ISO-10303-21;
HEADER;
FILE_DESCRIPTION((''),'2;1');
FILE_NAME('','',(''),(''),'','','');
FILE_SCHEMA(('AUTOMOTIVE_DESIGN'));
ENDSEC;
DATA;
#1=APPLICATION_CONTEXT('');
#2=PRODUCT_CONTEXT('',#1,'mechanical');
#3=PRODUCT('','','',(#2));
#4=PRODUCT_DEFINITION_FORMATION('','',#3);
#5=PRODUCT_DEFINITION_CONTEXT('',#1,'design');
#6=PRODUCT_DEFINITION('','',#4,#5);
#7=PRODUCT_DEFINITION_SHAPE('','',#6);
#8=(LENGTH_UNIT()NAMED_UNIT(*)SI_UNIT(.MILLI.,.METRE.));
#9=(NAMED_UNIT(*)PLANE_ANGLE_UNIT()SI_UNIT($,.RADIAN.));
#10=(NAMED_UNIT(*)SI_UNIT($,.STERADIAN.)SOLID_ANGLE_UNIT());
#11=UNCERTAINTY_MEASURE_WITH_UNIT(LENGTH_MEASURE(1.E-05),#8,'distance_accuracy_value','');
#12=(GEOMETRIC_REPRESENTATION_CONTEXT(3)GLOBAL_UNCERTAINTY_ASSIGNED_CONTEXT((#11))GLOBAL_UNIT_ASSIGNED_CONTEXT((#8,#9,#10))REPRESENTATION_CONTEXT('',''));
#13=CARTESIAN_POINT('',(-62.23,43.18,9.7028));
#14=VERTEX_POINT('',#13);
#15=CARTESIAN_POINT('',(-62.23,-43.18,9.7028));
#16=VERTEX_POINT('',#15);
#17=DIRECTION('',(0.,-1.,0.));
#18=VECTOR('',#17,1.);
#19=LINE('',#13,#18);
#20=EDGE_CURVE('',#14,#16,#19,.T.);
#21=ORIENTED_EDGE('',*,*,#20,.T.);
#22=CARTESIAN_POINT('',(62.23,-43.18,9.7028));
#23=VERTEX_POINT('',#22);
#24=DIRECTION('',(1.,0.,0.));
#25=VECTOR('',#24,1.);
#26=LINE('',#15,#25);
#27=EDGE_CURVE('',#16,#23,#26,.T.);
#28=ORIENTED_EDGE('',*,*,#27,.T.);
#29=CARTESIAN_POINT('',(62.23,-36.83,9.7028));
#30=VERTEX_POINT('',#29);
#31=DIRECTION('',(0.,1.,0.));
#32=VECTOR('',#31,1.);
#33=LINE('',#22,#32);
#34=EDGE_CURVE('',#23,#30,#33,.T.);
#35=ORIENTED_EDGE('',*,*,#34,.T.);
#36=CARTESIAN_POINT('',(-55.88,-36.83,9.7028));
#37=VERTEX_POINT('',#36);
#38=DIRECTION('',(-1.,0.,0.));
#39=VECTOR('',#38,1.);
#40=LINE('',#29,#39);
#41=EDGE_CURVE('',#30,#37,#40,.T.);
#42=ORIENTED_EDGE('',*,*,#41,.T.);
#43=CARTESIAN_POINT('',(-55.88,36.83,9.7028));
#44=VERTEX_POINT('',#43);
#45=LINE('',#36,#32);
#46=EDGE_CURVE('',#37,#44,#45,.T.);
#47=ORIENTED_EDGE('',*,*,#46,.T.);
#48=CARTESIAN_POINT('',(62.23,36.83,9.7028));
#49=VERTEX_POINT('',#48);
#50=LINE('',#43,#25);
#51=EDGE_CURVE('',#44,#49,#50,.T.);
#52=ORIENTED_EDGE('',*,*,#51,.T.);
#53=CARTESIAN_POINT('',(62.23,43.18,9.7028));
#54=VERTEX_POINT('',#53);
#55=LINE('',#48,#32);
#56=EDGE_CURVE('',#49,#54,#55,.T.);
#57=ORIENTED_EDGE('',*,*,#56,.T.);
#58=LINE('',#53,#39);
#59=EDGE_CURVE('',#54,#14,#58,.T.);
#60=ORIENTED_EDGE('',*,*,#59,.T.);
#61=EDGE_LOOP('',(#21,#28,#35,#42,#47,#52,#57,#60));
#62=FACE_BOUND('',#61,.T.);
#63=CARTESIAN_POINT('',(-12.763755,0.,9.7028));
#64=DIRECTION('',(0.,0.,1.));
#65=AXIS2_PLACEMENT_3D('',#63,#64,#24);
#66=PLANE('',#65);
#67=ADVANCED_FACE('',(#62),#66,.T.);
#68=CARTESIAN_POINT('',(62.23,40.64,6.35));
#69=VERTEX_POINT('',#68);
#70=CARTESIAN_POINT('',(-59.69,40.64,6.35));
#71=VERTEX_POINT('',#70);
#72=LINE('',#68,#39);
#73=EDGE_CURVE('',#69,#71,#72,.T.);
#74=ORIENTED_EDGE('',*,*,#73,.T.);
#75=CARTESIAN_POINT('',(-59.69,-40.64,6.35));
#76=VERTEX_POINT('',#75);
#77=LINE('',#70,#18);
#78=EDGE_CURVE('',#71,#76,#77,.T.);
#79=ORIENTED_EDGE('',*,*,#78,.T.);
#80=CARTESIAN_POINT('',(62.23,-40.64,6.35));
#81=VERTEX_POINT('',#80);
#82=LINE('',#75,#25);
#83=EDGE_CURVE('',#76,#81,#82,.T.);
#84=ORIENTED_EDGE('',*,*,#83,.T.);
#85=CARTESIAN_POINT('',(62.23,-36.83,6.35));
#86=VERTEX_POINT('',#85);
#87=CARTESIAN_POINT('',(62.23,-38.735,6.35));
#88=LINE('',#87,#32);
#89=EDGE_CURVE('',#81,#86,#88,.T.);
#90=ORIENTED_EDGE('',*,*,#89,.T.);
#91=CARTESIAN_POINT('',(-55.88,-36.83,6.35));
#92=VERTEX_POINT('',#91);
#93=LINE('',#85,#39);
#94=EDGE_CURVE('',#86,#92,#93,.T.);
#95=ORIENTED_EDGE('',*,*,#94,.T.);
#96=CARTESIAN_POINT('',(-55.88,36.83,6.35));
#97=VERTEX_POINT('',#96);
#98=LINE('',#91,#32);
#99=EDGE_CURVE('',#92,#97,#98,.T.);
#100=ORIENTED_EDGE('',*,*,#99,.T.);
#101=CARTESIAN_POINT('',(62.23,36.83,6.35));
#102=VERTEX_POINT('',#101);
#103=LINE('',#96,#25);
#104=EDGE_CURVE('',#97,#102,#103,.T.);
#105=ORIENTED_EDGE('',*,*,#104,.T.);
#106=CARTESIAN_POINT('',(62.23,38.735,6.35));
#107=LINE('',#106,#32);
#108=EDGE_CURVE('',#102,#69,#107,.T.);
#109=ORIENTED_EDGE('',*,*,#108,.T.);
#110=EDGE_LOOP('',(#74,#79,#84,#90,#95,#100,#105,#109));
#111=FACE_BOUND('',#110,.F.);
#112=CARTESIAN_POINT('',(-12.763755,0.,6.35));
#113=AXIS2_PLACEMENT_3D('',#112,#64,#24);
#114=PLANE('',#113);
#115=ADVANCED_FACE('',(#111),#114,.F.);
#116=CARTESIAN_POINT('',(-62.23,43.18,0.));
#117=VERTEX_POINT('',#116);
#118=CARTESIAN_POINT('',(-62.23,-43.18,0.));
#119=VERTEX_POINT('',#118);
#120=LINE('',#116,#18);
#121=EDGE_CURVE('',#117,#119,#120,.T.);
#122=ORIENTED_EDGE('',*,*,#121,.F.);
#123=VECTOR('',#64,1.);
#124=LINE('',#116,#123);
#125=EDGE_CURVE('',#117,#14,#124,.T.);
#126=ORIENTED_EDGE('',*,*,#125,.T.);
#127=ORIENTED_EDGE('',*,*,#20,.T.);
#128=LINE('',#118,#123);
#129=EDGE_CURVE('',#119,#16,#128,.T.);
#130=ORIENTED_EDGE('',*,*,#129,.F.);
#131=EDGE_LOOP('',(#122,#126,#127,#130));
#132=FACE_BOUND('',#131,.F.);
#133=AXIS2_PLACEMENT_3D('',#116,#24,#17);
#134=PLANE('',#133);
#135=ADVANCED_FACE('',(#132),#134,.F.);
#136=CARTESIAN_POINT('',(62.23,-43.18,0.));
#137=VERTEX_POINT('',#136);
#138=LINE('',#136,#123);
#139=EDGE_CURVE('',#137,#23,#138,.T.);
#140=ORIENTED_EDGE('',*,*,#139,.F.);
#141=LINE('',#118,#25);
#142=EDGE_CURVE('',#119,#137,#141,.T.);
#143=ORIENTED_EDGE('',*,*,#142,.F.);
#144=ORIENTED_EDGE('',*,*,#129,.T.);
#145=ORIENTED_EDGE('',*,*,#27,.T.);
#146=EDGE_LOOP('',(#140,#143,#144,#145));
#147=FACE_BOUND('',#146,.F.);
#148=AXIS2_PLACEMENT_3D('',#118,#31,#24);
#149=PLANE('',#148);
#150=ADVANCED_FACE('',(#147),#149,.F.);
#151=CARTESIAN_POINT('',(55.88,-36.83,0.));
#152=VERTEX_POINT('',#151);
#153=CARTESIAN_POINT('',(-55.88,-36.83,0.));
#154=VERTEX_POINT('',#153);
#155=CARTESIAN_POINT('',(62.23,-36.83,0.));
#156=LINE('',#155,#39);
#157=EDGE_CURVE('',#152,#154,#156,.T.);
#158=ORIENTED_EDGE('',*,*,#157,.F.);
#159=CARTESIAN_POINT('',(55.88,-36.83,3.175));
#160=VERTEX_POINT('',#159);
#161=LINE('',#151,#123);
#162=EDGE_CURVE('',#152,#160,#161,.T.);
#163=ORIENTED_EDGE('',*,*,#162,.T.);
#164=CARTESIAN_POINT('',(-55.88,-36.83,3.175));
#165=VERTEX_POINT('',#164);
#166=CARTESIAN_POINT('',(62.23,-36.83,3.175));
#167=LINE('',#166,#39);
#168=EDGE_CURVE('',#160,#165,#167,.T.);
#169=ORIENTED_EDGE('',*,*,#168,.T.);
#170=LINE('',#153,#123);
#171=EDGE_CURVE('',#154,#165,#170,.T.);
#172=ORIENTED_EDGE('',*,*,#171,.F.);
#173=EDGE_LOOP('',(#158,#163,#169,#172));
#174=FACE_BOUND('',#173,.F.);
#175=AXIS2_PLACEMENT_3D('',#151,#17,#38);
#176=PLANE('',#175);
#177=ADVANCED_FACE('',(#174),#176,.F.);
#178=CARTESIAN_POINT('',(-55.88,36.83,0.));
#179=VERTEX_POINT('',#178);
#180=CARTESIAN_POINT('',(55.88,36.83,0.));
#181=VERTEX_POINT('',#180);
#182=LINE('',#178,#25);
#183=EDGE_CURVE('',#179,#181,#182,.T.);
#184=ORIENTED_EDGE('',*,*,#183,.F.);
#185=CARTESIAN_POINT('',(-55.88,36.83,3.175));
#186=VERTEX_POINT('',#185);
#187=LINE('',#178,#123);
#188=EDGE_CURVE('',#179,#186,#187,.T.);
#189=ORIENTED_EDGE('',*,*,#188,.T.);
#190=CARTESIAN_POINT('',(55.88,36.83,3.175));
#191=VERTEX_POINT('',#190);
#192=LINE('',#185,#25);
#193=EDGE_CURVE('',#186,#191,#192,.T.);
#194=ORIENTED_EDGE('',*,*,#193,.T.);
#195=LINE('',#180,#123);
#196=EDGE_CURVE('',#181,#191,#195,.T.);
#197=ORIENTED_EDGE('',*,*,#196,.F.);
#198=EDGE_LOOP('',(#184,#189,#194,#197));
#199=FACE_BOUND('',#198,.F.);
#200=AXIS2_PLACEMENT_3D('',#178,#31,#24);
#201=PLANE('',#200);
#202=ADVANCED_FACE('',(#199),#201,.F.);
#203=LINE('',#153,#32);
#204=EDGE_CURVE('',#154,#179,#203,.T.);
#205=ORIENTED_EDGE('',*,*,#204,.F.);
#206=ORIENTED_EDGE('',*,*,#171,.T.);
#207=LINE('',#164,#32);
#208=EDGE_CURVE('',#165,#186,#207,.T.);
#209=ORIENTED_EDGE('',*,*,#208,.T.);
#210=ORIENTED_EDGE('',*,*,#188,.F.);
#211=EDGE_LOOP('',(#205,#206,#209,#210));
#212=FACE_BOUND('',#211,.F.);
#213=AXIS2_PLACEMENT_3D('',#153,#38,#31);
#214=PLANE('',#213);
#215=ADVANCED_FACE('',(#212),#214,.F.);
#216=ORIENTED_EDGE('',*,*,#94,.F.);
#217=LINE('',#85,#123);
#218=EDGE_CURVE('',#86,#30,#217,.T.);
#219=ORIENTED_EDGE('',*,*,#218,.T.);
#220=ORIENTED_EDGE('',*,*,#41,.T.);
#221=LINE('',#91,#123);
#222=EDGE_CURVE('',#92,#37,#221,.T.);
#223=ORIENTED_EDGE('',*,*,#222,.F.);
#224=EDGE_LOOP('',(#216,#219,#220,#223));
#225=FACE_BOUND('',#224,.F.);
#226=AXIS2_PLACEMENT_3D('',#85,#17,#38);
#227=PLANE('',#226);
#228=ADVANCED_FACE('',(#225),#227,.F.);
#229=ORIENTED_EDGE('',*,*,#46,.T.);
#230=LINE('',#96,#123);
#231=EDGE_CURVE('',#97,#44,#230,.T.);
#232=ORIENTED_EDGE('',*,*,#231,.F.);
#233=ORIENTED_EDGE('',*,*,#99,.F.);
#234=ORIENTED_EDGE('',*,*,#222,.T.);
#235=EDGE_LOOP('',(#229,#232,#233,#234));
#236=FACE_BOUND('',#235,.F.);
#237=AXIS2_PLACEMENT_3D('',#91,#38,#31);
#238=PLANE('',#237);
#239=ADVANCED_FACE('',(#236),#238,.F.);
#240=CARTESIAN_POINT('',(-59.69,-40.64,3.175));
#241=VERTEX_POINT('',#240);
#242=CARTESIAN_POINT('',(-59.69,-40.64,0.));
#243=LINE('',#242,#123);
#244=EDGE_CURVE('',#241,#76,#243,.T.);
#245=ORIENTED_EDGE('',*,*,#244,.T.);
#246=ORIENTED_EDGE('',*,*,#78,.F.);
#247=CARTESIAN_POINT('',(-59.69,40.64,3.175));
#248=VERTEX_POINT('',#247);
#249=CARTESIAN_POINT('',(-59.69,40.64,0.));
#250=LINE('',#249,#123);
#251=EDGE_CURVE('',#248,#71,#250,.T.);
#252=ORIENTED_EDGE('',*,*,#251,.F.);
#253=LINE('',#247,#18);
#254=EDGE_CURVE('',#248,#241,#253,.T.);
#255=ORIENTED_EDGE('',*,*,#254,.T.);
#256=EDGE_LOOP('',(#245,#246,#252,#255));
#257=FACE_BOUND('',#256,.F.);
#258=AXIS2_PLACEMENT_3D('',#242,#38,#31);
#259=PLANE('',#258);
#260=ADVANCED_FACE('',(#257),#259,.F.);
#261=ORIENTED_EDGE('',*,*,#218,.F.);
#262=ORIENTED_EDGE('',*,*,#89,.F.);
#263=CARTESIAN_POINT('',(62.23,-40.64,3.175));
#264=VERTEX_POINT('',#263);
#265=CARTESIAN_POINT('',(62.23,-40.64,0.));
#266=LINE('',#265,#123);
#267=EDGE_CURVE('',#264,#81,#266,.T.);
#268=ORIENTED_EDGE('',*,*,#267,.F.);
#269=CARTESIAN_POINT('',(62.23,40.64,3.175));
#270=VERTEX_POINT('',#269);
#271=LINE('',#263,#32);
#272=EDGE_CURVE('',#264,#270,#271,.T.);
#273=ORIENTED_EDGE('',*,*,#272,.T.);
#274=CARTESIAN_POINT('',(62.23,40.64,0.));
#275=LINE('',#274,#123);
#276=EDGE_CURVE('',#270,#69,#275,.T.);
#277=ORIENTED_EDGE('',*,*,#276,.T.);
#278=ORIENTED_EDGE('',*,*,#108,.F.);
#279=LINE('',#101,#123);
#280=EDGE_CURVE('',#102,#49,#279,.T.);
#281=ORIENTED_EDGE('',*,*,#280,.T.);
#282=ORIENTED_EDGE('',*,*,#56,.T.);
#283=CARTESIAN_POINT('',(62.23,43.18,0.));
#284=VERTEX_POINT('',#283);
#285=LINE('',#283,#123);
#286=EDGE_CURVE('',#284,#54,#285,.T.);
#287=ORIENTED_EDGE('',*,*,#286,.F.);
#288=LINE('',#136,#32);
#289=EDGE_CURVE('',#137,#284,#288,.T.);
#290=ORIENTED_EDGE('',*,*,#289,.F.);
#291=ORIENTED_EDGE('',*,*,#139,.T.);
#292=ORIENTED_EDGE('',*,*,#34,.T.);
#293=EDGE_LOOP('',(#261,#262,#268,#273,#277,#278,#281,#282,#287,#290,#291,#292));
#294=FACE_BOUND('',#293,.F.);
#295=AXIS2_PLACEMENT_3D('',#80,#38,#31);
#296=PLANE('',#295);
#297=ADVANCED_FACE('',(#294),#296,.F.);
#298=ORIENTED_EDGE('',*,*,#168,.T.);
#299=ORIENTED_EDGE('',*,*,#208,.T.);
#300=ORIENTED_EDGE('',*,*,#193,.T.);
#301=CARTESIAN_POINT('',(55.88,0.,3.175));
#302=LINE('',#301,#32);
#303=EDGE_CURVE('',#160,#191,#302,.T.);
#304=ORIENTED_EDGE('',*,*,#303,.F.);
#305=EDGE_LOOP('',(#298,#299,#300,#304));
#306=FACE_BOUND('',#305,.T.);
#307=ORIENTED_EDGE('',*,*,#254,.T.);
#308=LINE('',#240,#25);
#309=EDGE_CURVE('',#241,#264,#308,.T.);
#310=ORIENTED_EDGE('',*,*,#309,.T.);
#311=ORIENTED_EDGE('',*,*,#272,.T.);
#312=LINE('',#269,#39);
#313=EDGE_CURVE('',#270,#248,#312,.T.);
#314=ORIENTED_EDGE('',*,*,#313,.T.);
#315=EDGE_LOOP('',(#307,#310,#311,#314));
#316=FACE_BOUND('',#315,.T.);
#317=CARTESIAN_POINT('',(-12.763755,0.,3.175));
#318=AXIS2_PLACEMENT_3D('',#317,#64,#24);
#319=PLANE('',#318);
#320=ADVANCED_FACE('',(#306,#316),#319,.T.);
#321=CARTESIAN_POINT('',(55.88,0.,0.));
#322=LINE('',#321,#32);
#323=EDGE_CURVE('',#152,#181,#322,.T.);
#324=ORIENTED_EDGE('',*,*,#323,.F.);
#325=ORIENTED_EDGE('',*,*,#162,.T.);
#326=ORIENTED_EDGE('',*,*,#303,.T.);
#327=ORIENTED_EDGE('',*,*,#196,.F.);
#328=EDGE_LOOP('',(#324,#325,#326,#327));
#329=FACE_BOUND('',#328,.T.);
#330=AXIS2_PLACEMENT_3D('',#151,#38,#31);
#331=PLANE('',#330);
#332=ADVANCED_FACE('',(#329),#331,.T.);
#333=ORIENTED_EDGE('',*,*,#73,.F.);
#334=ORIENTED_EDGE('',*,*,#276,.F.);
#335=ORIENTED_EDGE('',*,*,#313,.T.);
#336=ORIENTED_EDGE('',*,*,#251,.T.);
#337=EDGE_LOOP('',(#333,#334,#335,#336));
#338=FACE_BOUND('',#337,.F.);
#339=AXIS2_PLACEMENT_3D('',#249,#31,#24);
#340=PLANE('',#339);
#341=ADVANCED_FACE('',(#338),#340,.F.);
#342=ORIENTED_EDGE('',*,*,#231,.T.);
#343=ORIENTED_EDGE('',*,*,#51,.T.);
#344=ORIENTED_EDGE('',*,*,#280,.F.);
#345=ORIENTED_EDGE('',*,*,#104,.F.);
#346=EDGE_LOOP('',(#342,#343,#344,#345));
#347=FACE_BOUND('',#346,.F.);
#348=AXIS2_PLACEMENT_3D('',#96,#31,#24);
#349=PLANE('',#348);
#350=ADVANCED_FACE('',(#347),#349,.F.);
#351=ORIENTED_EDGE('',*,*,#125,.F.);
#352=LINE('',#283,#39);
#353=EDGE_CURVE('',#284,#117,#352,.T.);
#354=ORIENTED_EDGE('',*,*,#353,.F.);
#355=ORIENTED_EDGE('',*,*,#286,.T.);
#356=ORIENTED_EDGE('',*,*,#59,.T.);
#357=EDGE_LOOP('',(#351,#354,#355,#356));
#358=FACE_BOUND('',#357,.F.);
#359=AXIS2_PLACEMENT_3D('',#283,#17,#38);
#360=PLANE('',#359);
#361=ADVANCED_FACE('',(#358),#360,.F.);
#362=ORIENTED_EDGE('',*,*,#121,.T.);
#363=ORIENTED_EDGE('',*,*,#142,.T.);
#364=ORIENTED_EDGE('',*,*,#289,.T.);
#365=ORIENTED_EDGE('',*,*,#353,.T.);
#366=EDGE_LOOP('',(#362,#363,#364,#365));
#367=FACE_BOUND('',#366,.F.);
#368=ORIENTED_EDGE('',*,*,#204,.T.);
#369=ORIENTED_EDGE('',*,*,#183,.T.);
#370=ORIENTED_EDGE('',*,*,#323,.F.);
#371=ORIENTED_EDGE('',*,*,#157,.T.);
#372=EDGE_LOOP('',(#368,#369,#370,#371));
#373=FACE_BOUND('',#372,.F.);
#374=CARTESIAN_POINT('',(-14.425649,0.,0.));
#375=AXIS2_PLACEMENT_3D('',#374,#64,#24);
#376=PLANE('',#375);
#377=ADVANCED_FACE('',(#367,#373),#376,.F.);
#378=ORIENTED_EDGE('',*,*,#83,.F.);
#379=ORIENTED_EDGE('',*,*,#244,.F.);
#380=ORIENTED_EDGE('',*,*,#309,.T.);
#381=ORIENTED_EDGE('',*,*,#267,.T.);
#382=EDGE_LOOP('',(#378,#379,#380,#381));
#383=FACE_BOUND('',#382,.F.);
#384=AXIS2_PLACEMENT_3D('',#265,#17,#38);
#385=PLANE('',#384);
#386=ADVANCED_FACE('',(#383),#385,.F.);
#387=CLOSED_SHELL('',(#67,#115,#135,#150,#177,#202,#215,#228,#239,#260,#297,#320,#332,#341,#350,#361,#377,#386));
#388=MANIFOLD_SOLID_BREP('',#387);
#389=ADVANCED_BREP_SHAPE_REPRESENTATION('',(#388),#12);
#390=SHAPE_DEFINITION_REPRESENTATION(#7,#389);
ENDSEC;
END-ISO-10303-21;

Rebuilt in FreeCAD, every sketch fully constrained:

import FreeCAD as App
import Part
import Sketcher

V = App.Vector
Q = App.Units.Quantity

doc = App.newDocument("Part")
body = doc.addObject("PartDesign::Body", "Body")

# Sketch on XY plane
sketch1 = doc.addObject("Sketcher::SketchObject", "Sketch")
body.addObject(sketch1)
sketch1.AttachmentSupport = (doc.XY_Plane, [""])
sketch1.MapMode = "FlatFace"
sketch1.addGeometry(Part.LineSegment(V(62, 41, 0), V(-60, 41, 0)), False)
sketch1.addGeometry(Part.LineSegment(V(-60, 41, 0), V(-60, -41, 0)), False)
sketch1.addGeometry(Part.LineSegment(V(-60, -41, 0), V(62, -41, 0)), False)
sketch1.addGeometry(Part.LineSegment(V(62, -41, 0), V(62, 41, 0)), False)
sketch1.addGeometry(Part.LineSegment(V(-56, -37, 0), V(-56, 37, 0)), False)
sketch1.addGeometry(Part.LineSegment(V(-56, 37, 0), V(56, 37, 0)), False)
sketch1.addGeometry(Part.LineSegment(V(56, 37, 0), V(56, -37, 0)), False)
sketch1.addGeometry(Part.LineSegment(V(56, -37, 0), V(-56, -37, 0)), False)
sketch1.addConstraint(Sketcher.Constraint("Coincident", 0, 2, 1, 1))
sketch1.addConstraint(Sketcher.Constraint("Coincident", 1, 2, 2, 1))
sketch1.addConstraint(Sketcher.Constraint("Coincident", 2, 2, 3, 1))
sketch1.addConstraint(Sketcher.Constraint("Coincident", 3, 2, 0, 1))
sketch1.addConstraint(Sketcher.Constraint("Coincident", 4, 2, 5, 1))
sketch1.addConstraint(Sketcher.Constraint("Coincident", 5, 2, 6, 1))
sketch1.addConstraint(Sketcher.Constraint("Coincident", 6, 2, 7, 1))
sketch1.addConstraint(Sketcher.Constraint("Coincident", 7, 2, 4, 1))
sketch1.addConstraint(Sketcher.Constraint("Horizontal", 0))
sketch1.addConstraint(Sketcher.Constraint("Vertical", 1))
sketch1.addConstraint(Sketcher.Constraint("Horizontal", 2))
sketch1.addConstraint(Sketcher.Constraint("Vertical", 3))
sketch1.addConstraint(Sketcher.Constraint("Vertical", 4))
sketch1.addConstraint(Sketcher.Constraint("Horizontal", 5))
sketch1.addConstraint(Sketcher.Constraint("Vertical", 6))
sketch1.addConstraint(Sketcher.Constraint("Horizontal", 7))
sketch1.addConstraint(Sketcher.Constraint("Symmetric", 4, 2, 6, 2, -1, 1))
sketch1.addConstraint(Sketcher.Constraint("DistanceX", 0, 2, 0, 1, Q("4.8 in")))
sketch1.addConstraint(Sketcher.Constraint("DistanceX", 5, 1, 5, 2, Q("4.4 in")))
sketch1.addConstraint(Sketcher.Constraint("DistanceY", 1, 2, 1, 1, Q("3.2 in")))
sketch1.addConstraint(Sketcher.Constraint("DistanceY", 4, 1, 4, 2, Q("2.9 in")))
sketch1.addConstraint(Sketcher.Constraint("DistanceY", -1, 1, 0, 2, Q("1.6 in")))
sketch1.addConstraint(Sketcher.Constraint("DistanceX", 0, 2, -1, 1, Q("2.35 in")))
pad1 = doc.addObject("PartDesign::Pad", "Pad")
body.addObject(pad1)
pad1.Profile = sketch1
pad1.Length = Q("0.125 in")

# Sketch on XY plane
sketch2 = doc.addObject("Sketcher::SketchObject", "Sketch001")
body.addObject(sketch2)
sketch2.AttachmentSupport = (doc.XY_Plane, [""])
sketch2.MapMode = "FlatFace"
sketch2.addGeometry(Part.LineSegment(V(-59.7, 40.6, 0), V(62.2, 40.6, 0)), False)
sketch2.addGeometry(Part.LineSegment(V(62.2, 40.6, 0), V(62.2, 43.2, 0)), False)
sketch2.addGeometry(Part.LineSegment(V(62.2, 43.2, 0), V(-62.2, 43.2, 0)), False)
sketch2.addGeometry(Part.LineSegment(V(-62.2, 43.2, 0), V(-62.2, -43.2, 0)), False)
sketch2.addGeometry(Part.LineSegment(V(-62.2, -43.2, 0), V(62.2, -43.2, 0)), False)
sketch2.addGeometry(Part.LineSegment(V(62.2, -43.2, 0), V(62.2, -40.6, 0)), False)
sketch2.addGeometry(Part.LineSegment(V(62.2, -40.6, 0), V(-59.7, -40.6, 0)), False)
sketch2.addGeometry(Part.LineSegment(V(-59.7, -40.6, 0), V(-59.7, 40.6, 0)), False)
sketch2.addConstraint(Sketcher.Constraint("Coincident", 0, 2, 1, 1))
sketch2.addConstraint(Sketcher.Constraint("Coincident", 1, 2, 2, 1))
sketch2.addConstraint(Sketcher.Constraint("Coincident", 2, 2, 3, 1))
sketch2.addConstraint(Sketcher.Constraint("Coincident", 3, 2, 4, 1))
sketch2.addConstraint(Sketcher.Constraint("Coincident", 4, 2, 5, 1))
sketch2.addConstraint(Sketcher.Constraint("Coincident", 5, 2, 6, 1))
sketch2.addConstraint(Sketcher.Constraint("Coincident", 6, 2, 7, 1))
sketch2.addConstraint(Sketcher.Constraint("Coincident", 7, 2, 0, 1))
sketch2.addConstraint(Sketcher.Constraint("Horizontal", 0))
sketch2.addConstraint(Sketcher.Constraint("Vertical", 1))
sketch2.addConstraint(Sketcher.Constraint("Horizontal", 2))
sketch2.addConstraint(Sketcher.Constraint("Vertical", 3))
sketch2.addConstraint(Sketcher.Constraint("Horizontal", 4))
sketch2.addConstraint(Sketcher.Constraint("Vertical", 5))
sketch2.addConstraint(Sketcher.Constraint("Horizontal", 6))
sketch2.addConstraint(Sketcher.Constraint("Vertical", 7))
sketch2.addConstraint(Sketcher.Constraint("Symmetric", 1, 2, 3, 2, -1, 1))
sketch2.addConstraint(Sketcher.Constraint("Symmetric", 0, 2, 5, 2, -1))
sketch2.addConstraint(Sketcher.Constraint("DistanceX", 0, 1, 0, 2, Q("4.8 in")))
sketch2.addConstraint(Sketcher.Constraint("DistanceX", 2, 2, 2, 1, Q("4.9 in")))
sketch2.addConstraint(Sketcher.Constraint("DistanceY", 1, 1, 1, 2, Q("0.1 in")))
sketch2.addConstraint(Sketcher.Constraint("DistanceY", 3, 2, 3, 1, Q("3.4 in")))
pad2 = doc.addObject("PartDesign::Pad", "Pad001")
body.addObject(pad2)
pad2.Profile = sketch2
pad2.Length = Q("0.382 in")

# Sketch on XY plane
sketch3 = doc.addObject("Sketcher::SketchObject", "Sketch002")
body.addObject(sketch3)
sketch3.AttachmentSupport = (doc.XY_Plane, [""])
sketch3.MapMode = "FlatFace"
sketch3.AttachmentOffset = App.Placement(V(0, 0, 0.25 * 25.4), App.Rotation())
sketch3.addGeometry(Part.LineSegment(V(-55.9, -36.8, 0), V(-55.9, 36.8, 0)), False)
sketch3.addGeometry(Part.LineSegment(V(-55.9, 36.8, 0), V(62.2, 36.8, 0)), False)
sketch3.addGeometry(Part.LineSegment(V(62.2, 36.8, 0), V(62.2, 40.6, 0)), False)
sketch3.addGeometry(Part.LineSegment(V(62.2, 40.6, 0), V(-59.7, 40.6, 0)), False)
sketch3.addGeometry(Part.LineSegment(V(-59.7, 40.6, 0), V(-59.7, -40.6, 0)), False)
sketch3.addGeometry(Part.LineSegment(V(-59.7, -40.6, 0), V(62.2, -40.6, 0)), False)
sketch3.addGeometry(Part.LineSegment(V(62.2, -40.6, 0), V(62.2, -36.8, 0)), False)
sketch3.addGeometry(Part.LineSegment(V(62.2, -36.8, 0), V(-55.9, -36.8, 0)), False)
sketch3.addConstraint(Sketcher.Constraint("Coincident", 0, 2, 1, 1))
sketch3.addConstraint(Sketcher.Constraint("Coincident", 1, 2, 2, 1))
sketch3.addConstraint(Sketcher.Constraint("Coincident", 2, 2, 3, 1))
sketch3.addConstraint(Sketcher.Constraint("Coincident", 3, 2, 4, 1))
sketch3.addConstraint(Sketcher.Constraint("Coincident", 4, 2, 5, 1))
sketch3.addConstraint(Sketcher.Constraint("Coincident", 5, 2, 6, 1))
sketch3.addConstraint(Sketcher.Constraint("Coincident", 6, 2, 7, 1))
sketch3.addConstraint(Sketcher.Constraint("Coincident", 7, 2, 0, 1))
sketch3.addConstraint(Sketcher.Constraint("Vertical", 0))
sketch3.addConstraint(Sketcher.Constraint("Horizontal", 1))
sketch3.addConstraint(Sketcher.Constraint("Vertical", 2))
sketch3.addConstraint(Sketcher.Constraint("Horizontal", 3))
sketch3.addConstraint(Sketcher.Constraint("Vertical", 4))
sketch3.addConstraint(Sketcher.Constraint("Horizontal", 5))
sketch3.addConstraint(Sketcher.Constraint("Vertical", 6))
sketch3.addConstraint(Sketcher.Constraint("Horizontal", 7))
sketch3.addConstraint(Sketcher.Constraint("Symmetric", 2, 2, 5, 2, -1))
sketch3.addConstraint(Sketcher.Constraint("Equal", 2, 6))
sketch3.addConstraint(Sketcher.Constraint("DistanceX", 3, 2, 3, 1, Q("4.8 in")))
sketch3.addConstraint(Sketcher.Constraint("DistanceY", 0, 1, 0, 2, Q("2.9 in")))
sketch3.addConstraint(Sketcher.Constraint("DistanceY", 4, 2, 4, 1, Q("3.2 in")))
sketch3.addConstraint(Sketcher.Constraint("DistanceX", 1, 1, 1, 2, Q("4.65 in")))
sketch3.addConstraint(Sketcher.Constraint("DistanceX", 0, 2, -1, 1, Q("2.2 in")))
pad3 = doc.addObject("PartDesign::Pad", "Pad002")
body.addObject(pad3)
pad3.Profile = sketch3
pad3.Length = Q("0.132 in")

doc.recompute()
